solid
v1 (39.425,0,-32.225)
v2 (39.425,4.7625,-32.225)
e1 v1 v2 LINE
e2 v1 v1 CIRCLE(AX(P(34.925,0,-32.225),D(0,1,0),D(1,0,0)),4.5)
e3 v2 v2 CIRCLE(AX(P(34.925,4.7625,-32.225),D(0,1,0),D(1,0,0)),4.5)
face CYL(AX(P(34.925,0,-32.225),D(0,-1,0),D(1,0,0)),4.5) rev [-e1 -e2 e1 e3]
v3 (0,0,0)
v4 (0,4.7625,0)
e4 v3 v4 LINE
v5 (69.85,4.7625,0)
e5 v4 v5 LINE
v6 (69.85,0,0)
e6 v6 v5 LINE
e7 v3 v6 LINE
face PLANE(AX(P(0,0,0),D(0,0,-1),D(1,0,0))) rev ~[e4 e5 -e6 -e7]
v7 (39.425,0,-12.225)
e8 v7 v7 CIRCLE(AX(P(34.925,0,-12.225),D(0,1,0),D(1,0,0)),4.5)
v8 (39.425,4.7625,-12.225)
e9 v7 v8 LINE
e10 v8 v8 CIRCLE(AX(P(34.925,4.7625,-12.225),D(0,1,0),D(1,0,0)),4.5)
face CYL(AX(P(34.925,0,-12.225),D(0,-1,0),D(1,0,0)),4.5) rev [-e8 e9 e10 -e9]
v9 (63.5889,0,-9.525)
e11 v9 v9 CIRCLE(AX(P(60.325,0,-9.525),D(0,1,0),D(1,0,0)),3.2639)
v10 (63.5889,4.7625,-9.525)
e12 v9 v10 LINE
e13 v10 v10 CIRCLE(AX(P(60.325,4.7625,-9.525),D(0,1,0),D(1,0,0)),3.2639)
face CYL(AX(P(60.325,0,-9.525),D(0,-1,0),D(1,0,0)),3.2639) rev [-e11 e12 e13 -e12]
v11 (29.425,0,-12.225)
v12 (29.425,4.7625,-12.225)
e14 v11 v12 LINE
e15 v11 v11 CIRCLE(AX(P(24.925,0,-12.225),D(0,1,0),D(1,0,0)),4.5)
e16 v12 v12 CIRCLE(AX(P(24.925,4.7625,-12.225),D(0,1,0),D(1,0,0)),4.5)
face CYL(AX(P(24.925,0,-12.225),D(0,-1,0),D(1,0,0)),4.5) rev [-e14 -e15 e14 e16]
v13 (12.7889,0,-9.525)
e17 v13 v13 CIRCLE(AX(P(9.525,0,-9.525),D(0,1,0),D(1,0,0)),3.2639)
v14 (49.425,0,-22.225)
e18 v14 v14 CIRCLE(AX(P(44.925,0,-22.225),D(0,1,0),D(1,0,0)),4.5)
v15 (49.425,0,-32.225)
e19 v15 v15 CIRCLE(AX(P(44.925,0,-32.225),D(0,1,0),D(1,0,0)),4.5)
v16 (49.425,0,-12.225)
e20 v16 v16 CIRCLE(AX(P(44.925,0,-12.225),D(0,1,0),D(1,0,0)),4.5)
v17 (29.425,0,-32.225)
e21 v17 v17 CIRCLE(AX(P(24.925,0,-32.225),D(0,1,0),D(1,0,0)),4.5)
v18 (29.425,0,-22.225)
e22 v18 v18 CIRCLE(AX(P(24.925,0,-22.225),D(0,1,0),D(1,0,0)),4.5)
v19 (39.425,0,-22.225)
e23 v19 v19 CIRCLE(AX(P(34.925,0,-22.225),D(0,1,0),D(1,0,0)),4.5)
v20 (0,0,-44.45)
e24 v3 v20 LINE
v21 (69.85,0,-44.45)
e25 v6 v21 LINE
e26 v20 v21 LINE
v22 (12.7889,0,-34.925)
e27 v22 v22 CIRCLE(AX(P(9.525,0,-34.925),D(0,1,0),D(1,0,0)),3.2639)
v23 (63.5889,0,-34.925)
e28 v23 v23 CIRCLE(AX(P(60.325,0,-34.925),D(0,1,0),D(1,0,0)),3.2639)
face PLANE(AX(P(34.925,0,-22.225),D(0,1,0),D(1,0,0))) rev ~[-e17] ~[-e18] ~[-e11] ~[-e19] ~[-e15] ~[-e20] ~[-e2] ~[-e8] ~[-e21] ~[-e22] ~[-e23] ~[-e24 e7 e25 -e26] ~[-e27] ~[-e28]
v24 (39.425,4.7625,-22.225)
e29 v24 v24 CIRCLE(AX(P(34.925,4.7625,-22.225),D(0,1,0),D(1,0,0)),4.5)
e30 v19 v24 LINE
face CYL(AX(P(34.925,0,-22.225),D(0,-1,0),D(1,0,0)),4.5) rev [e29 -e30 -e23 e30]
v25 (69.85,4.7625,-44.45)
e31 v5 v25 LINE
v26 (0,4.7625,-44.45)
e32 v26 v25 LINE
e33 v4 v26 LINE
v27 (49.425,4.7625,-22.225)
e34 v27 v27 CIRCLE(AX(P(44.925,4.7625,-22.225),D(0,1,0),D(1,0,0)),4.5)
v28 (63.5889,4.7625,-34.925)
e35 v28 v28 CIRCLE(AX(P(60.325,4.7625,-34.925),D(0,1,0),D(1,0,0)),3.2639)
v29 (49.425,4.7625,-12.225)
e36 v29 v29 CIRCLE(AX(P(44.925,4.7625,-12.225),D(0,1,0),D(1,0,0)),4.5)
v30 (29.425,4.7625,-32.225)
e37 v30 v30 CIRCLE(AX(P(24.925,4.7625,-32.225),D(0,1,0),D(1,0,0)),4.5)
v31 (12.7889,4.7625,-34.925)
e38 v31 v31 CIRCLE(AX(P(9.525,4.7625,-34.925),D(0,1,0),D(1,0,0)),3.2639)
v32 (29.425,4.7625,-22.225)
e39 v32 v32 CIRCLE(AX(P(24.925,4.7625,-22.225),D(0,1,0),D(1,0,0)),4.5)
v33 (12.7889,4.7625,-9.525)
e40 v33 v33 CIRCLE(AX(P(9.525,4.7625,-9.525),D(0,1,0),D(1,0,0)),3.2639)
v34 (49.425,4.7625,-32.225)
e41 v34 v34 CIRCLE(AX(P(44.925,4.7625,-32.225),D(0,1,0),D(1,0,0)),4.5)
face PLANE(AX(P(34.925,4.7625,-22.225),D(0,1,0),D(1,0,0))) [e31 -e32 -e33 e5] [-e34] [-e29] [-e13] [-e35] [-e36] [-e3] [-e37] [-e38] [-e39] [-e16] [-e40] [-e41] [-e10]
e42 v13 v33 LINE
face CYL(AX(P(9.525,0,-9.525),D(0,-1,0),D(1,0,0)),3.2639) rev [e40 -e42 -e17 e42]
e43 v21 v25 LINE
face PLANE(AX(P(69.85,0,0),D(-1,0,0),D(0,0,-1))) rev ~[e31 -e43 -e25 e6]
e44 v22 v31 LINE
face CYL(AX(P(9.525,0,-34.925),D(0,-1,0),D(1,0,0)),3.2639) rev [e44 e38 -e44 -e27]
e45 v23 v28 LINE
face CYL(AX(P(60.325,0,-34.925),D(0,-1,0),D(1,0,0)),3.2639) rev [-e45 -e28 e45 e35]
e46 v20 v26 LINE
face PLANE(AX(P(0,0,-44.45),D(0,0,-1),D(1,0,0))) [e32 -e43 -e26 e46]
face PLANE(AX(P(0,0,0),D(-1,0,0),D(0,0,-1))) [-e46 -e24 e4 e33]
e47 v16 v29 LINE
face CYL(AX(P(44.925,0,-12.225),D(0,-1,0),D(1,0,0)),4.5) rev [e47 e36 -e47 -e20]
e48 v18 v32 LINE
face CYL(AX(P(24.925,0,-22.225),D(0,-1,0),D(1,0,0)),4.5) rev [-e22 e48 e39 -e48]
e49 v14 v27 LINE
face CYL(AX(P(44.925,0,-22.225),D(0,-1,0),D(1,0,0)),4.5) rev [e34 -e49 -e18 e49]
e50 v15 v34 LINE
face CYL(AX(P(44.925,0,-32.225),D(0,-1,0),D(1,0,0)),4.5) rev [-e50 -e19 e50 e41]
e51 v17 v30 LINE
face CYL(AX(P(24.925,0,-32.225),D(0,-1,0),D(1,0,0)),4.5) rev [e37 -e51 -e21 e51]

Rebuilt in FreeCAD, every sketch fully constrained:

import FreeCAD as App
import Part
import Sketcher
from FreeCAD import Vector
Q = App.Units.Quantity


def add_polygon(sketch, points):
    """Adds a closed chain of lines whose ends are joined by coincident constraints."""
    first, n = sketch.GeometryCount, len(points)
    for a, b in zip(points, points[1:] + points[:1]):
        sketch.addGeometry(Part.LineSegment(App.Vector(*a, 0), App.Vector(*b, 0)), False)
    for i in range(n):
        sketch.addConstraint(Sketcher.Constraint("Coincident", first + i, 2, first + (i + 1) % n, 1))

doc = App.newDocument("Part")
params = doc.addObject("Spreadsheet::Sheet", "Params")
for row, (alias, value) in enumerate([
    ("sketch1_diameter", "0.257 in"),
    ("sketch1_width", "2.75 in"),
    ("sketch1_height", "1.75 in"),
    ("pad1_length", "0.1875 in"),
], start=1):
    params.set(f"A{row}", alias)
    params.set(f"B{row}", "=" + value)
    params.setAlias(f"B{row}", alias)

body = doc.addObject("PartDesign::Body", "Body")

# Sketch on XZ plane
sketch1 = body.newObject("Sketcher::SketchObject", "Sketch")
sketch1.AttachmentSupport = (doc.getObject("XZ_Plane"), [""])
sketch1.MapMode = "FlatFace"
add_polygon(sketch1, [(0, -44.5), (0, 0), (69.8, 0), (69.8, -44.5)])  # lines 0-3
sketch1.addGeometry(Part.Circle(Vector(9.5, -9.5, 0), Vector(0, 0, 1), 3.3), False)  # 4
sketch1.addGeometry(Part.Circle(Vector(24.9, -12.2, 0), Vector(0, 0, 1), 4.5), False)  # 5
sketch1.addGeometry(Part.Circle(Vector(34.9, -12.2, 0), Vector(0, 0, 1), 4.5), False)  # 6
sketch1.addGeometry(Part.Circle(Vector(44.9, -12.2, 0), Vector(0, 0, 1), 4.5), False)  # 7
sketch1.addGeometry(Part.Circle(Vector(60.3, -9.5, 0), Vector(0, 0, 1), 3.3), False)  # 8
sketch1.addGeometry(Part.Circle(Vector(24.9, -22.2, 0), Vector(0, 0, 1), 4.5), False)  # 9
sketch1.addGeometry(Part.Circle(Vector(34.9, -22.2, 0), Vector(0, 0, 1), 4.5), False)  # 10
sketch1.addGeometry(Part.Circle(Vector(9.5, -34.9, 0), Vector(0, 0, 1), 3.3), False)  # 11
sketch1.addGeometry(Part.Circle(Vector(24.9, -32.2, 0), Vector(0, 0, 1), 4.5), False)  # 12
sketch1.addGeometry(Part.Circle(Vector(34.9, -32.2, 0), Vector(0, 0, 1), 4.5), False)  # 13
sketch1.addGeometry(Part.Circle(Vector(44.9, -22.2, 0), Vector(0, 0, 1), 4.5), False)  # 14
sketch1.addGeometry(Part.Circle(Vector(44.9, -32.2, 0), Vector(0, 0, 1), 4.5), False)  # 15
sketch1.addGeometry(Part.Circle(Vector(60.3, -34.9, 0), Vector(0, 0, 1), 3.3), False)  # 16
sketch1.addConstraint(Sketcher.Constraint("Vertical", 0))
sketch1.addConstraint(Sketcher.Constraint("Horizontal", 1))
sketch1.addConstraint(Sketcher.Constraint("Vertical", 2))
sketch1.addConstraint(Sketcher.Constraint("Horizontal", 3))
sketch1.addConstraint(Sketcher.Constraint("Coincident", 0, 2, -1, 1))
sketch1.addConstraint(Sketcher.Constraint("Equal", 5, 6))
sketch1.addConstraint(Sketcher.Constraint("Equal", 6, 7))
sketch1.addConstraint(Sketcher.Constraint("Equal", 4, 8))
sketch1.addConstraint(Sketcher.Constraint("Equal", 7, 9))
sketch1.addConstraint(Sketcher.Constraint("Equal", 9, 10))
sketch1.addConstraint(Sketcher.Constraint("Equal", 8, 11))
sketch1.addConstraint(Sketcher.Constraint("Equal", 10, 12))
sketch1.addConstraint(Sketcher.Constraint("Equal", 12, 13))
sketch1.addConstraint(Sketcher.Constraint("Equal", 13, 14))
sketch1.addConstraint(Sketcher.Constraint("Equal", 14, 15))
sketch1.addConstraint(Sketcher.Constraint("Equal", 11, 16))
sketch1.addConstraint(Sketcher.Constraint("Horizontal", 5, 3, 6, 3))
sketch1.addConstraint(Sketcher.Constraint("Horizontal", 6, 3, 7, 3))
sketch1.addConstraint(Sketcher.Constraint("Horizontal", 4, 3, 8, 3))
sketch1.addConstraint(Sketcher.Constraint("Horizontal", 9, 3, 10, 3))
sketch1.addConstraint(Sketcher.Constraint("Horizontal", 12, 3, 13, 3))
sketch1.addConstraint(Sketcher.Constraint("Horizontal", 10, 3, 14, 3))
sketch1.addConstraint(Sketcher.Constraint("Horizontal", 13, 3, 15, 3))
sketch1.addConstraint(Sketcher.Constraint("Horizontal", 11, 3, 16, 3))
sketch1.addConstraint(Sketcher.Constraint("Vertical", 5, 3, 9, 3))
sketch1.addConstraint(Sketcher.Constraint("Vertical", 6, 3, 10, 3))
sketch1.addConstraint(Sketcher.Constraint("Vertical", 4, 3, 11, 3))
sketch1.addConstraint(Sketcher.Constraint("Vertical", 9, 3, 12, 3))
sketch1.addConstraint(Sketcher.Constraint("Vertical", 10, 3, 13, 3))
sketch1.addConstraint(Sketcher.Constraint("Vertical", 7, 3, 14, 3))
sketch1.addConstraint(Sketcher.Constraint("Vertical", 14, 3, 15, 3))
sketch1.addConstraint(Sketcher.Constraint("Vertical", 8, 3, 16, 3))
sketch1.addConstraint(Sketcher.Constraint("Diameter", 4, Q("0.257 in")))
sketch1.addConstraint(Sketcher.Constraint("DistanceX", 4, 3, 6, 3, Q("1 in")))
sketch1.addConstraint(Sketcher.Constraint("DistanceX", 6, 3, 8, 3, Q("1 in")))
sketch1.addConstraint(Sketcher.Constraint("DistanceY", 11, 3, 4, 3, Q("1 in")))
sketch1.addConstraint(Sketcher.Constraint("DistanceX", 1, 1, 1, 2, Q("2.75 in")))
sketch1.addConstraint(Sketcher.Constraint("DistanceY", 0, 1, 0, 2, Q("1.75 in")))
sketch1.addConstraint(Sketcher.Constraint("DistanceY", 9, 3, 4, 3, Q("0.5 in")))
sketch1.addConstraint(Sketcher.Constraint("Diameter", 5, 9.0))
sketch1.addConstraint(Sketcher.Constraint("DistanceX", -1, 1, 4, 3, Q("0.375 in")))
sketch1.addConstraint(Sketcher.Constraint("DistanceY", 4, 3, -1, 1, Q("0.375 in")))
sketch1.addConstraint(Sketcher.Constraint("DistanceX", -1, 1, 5, 3, 24.925))
sketch1.addConstraint(Sketcher.Constraint("DistanceY", 5, 3, -1, 1, 12.225))
sketch1.addConstraint(Sketcher.Constraint("DistanceX", -1, 1, 7, 3, 44.925))
sketch1.addConstraint(Sketcher.Constraint("DistanceY", 12, 3, -1, 1, 32.225))
sketch1.setExpression("Constraints[36]", "Params.sketch1_diameter")
sketch1.setExpression("Constraints[40]", "Params.sketch1_width")
sketch1.setExpression("Constraints[41]", "Params.sketch1_height")
pad1 = body.newObject("PartDesign::Pad", "Pad")
pad1.Profile = sketch1
pad1.setExpression("Length", "Params.pad1_length")
pad1.Reversed = True

doc.recompute()
